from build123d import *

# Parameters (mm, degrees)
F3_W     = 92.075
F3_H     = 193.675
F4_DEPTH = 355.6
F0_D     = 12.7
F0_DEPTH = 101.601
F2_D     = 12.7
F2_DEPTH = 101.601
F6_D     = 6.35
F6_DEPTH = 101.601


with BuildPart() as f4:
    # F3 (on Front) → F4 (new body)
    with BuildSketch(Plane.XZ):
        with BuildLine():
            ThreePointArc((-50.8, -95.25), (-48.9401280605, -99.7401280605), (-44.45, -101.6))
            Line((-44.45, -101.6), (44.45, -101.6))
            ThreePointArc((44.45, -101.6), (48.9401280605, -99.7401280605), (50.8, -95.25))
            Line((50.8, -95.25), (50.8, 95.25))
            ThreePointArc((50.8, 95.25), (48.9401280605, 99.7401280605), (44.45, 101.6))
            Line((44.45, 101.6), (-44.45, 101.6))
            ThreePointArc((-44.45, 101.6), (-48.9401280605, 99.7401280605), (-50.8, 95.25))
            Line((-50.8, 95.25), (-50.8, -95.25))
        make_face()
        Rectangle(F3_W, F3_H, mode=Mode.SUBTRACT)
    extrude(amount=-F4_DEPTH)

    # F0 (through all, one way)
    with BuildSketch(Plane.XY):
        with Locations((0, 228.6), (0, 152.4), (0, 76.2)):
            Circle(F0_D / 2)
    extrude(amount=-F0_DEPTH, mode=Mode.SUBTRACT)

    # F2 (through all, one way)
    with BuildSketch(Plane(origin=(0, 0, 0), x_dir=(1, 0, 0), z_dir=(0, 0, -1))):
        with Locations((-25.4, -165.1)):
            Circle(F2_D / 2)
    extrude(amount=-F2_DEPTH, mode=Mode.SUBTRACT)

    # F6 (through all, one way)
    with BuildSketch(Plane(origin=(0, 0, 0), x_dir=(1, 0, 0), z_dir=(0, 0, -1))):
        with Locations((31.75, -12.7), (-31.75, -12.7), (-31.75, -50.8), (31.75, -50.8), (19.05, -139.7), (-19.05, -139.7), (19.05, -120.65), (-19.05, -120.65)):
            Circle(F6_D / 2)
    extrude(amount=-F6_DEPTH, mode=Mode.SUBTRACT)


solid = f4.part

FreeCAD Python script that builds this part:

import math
import FreeCAD as App
import Part
import Sketcher
from FreeCAD import Vector
Q = App.Units.Quantity


def add_polygon(sketch, points):
    """Adds a closed chain of lines whose ends are joined by coincident constraints."""
    first, n = sketch.GeometryCount, len(points)
    for a, b in zip(points, points[1:] + points[:1]):
        sketch.addGeometry(Part.LineSegment(App.Vector(*a, 0), App.Vector(*b, 0)), False)
    for i in range(n):
        sketch.addConstraint(Sketcher.Constraint("Coincident", first + i, 2, first + (i + 1) % n, 1))

doc = App.newDocument("Part")
params = doc.addObject("Spreadsheet::Sheet", "Params")
for row, (alias, value) in enumerate([
    ("sketch1_radius", "0.25 in"),
    ("sketch1_width", "3.5 in"),
    ("sketch1_height", "7.5 in"),
    ("sketch1_width2", "3.625 in"),
    ("sketch1_height2", "7.625 in"),
    ("pad1_length", "14 in"),
    ("sketch2_diameter", "0.5 in"),
    ("sketch3_diameter", "0.5 in"),
    ("sketch4_diameter", "0.25 in"),
], start=1):
    params.set(f"A{row}", alias)
    params.set(f"B{row}", "=" + value)
    params.setAlias(f"B{row}", alias)

body = doc.addObject("PartDesign::Body", "Body")

sketch1 = doc.addObject("Sketcher::SketchObject", "Sketch")
body.addObject(sketch1)
sketch1.AttachmentSupport = (doc.XZ_Plane, [""])
sketch1.MapMode = "FlatFace"
sketch1.addGeometry(Part.ArcOfCircle(Part.Circle(Vector(-44.45, -95.25, 0), Vector(0, 0, 1), 6.35), math.radians(180), math.radians(270)), False)
sketch1.addGeometry(Part.LineSegment(Vector(-44.45, -101.6, 0), Vector(44.45, -101.6, 0)), False)
sketch1.addGeometry(Part.ArcOfCircle(Part.Circle(Vector(44.45, -95.25, 0), Vector(0, 0, 1), 6.35), math.radians(-90), math.radians(0)), False)
sketch1.addGeometry(Part.LineSegment(Vector(50.8, -95.25, 0), Vector(50.8, 95.25, 0)), False)
sketch1.addGeometry(Part.ArcOfCircle(Part.Circle(Vector(44.45, 95.25, 0), Vector(0, 0, 1), 6.35), math.radians(0), math.radians(90)), False)
sketch1.addGeometry(Part.LineSegment(Vector(44.45, 101.6, 0), Vector(-44.45, 101.6, 0)), False)
sketch1.addGeometry(Part.ArcOfCircle(Part.Circle(Vector(-44.45, 95.25, 0), Vector(0, 0, 1), 6.35), math.radians(90), math.radians(180)), False)
sketch1.addGeometry(Part.LineSegment(Vector(-50.8, 95.25, 0), Vector(-50.8, -95.25, 0)), False)
add_polygon(sketch1, [(46.0375, -96.8375), (-46.0375, -96.8375), (-46.0375, 96.8375), (46.0375, 96.8375)])
sketch1.addConstraint(Sketcher.Constraint("Tangent", 0, 2, 1, 1))
sketch1.addConstraint(Sketcher.Constraint("Tangent", 1, 2, 2, 1))
sketch1.addConstraint(Sketcher.Constraint("Tangent", 2, 2, 3, 1))
sketch1.addConstraint(Sketcher.Constraint("Tangent", 3, 2, 4, 1))
sketch1.addConstraint(Sketcher.Constraint("Tangent", 4, 2, 5, 1))
sketch1.addConstraint(Sketcher.Constraint("Tangent", 5, 2, 6, 1))
sketch1.addConstraint(Sketcher.Constraint("Tangent", 6, 2, 7, 1))
sketch1.addConstraint(Sketcher.Constraint("Tangent", 7, 2, 0, 1))
sketch1.addConstraint(Sketcher.Constraint("Horizontal", 1))
sketch1.addConstraint(Sketcher.Constraint("Vertical", 3))
sketch1.addConstraint(Sketcher.Constraint("Horizontal", 5))
sketch1.addConstraint(Sketcher.Constraint("Vertical", 7))
sketch1.addConstraint(Sketcher.Constraint("Horizontal", 8))
sketch1.addConstraint(Sketcher.Constraint("Vertical", 9))
sketch1.addConstraint(Sketcher.Constraint("Horizontal", 10))
sketch1.addConstraint(Sketcher.Constraint("Vertical", 11))
sketch1.addConstraint(Sketcher.Constraint("Equal", 0, 2))
sketch1.addConstraint(Sketcher.Constraint("Equal", 2, 4))
sketch1.addConstraint(Sketcher.Constraint("Equal", 4, 6))
sketch1.addConstraint(Sketcher.Constraint("Symmetric", 0, 3, 4, 3, -1, 1))
sketch1.addConstraint(Sketcher.Constraint("Symmetric", 8, 2, 10, 2, -1, 1))
sketch1.addConstraint(Sketcher.Constraint("Radius", 0, Q("0.25 in")))
sketch1.addConstraint(Sketcher.Constraint("DistanceX", 1, 1, 1, 2, Q("3.5 in")))
sketch1.addConstraint(Sketcher.Constraint("DistanceY", 3, 1, 3, 2, Q("7.5 in")))
sketch1.addConstraint(Sketcher.Constraint("DistanceX", 8, 2, 8, 1, Q("3.625 in")))
sketch1.addConstraint(Sketcher.Constraint("DistanceY", 9, 1, 9, 2, Q("7.625 in")))
sketch1.setExpression("Constraints[25]", "Params.sketch1_radius")
sketch1.setExpression("Constraints[26]", "Params.sketch1_width")
sketch1.setExpression("Constraints[27]", "Params.sketch1_height")
sketch1.setExpression("Constraints[28]", "Params.sketch1_width2")
sketch1.setExpression("Constraints[29]", "Params.sketch1_height2")
pad1 = doc.addObject("PartDesign::Pad", "Pad")
body.addObject(pad1)
pad1.Profile = sketch1
pad1.setExpression("Length", "Params.pad1_length")
pad1.Reversed = True

sketch2 = doc.addObject("Sketcher::SketchObject", "Sketch001")
body.addObject(sketch2)
sketch2.AttachmentSupport = (doc.XY_Plane, [""])
sketch2.MapMode = "FlatFace"
sketch2.addGeometry(Part.Circle(Vector(0, 76.2, 0), Vector(0, 0, 1), 6.35), False)
sketch2.addGeometry(Part.Circle(Vector(0, 228.6, 0), Vector(0, 0, 1), 6.35), False)
sketch2.addGeometry(Part.Circle(Vector(0, 152.4, 0), Vector(0, 0, 1), 6.35), False)
sketch2.addConstraint(Sketcher.Constraint("Equal", 0, 1))
sketch2.addConstraint(Sketcher.Constraint("Equal", 1, 2))
sketch2.addConstraint(Sketcher.Constraint("PointOnObject", 0, 3, -2))
sketch2.addConstraint(Sketcher.Constraint("PointOnObject", 1, 3, -2))
sketch2.addConstraint(Sketcher.Constraint("PointOnObject", 2, 3, -2))
sketch2.addConstraint(Sketcher.Constraint("Diameter", 0, Q("0.5 in")))
sketch2.addConstraint(Sketcher.Constraint("DistanceY", -1, 1, 0, 3, Q("3 in")))
sketch2.addConstraint(Sketcher.Constraint("DistanceY", -1, 1, 1, 3, Q("9 in")))
sketch2.addConstraint(Sketcher.Constraint("DistanceY", -1, 1, 2, 3, Q("6 in")))
sketch2.setExpression("Constraints[5]", "Params.sketch2_diameter")
pocket1 = doc.addObject("PartDesign::Pocket", "Pocket")
body.addObject(pocket1)
pocket1.Profile = sketch2
pocket1.Type = "ThroughAll"

sketch3 = doc.addObject("Sketcher::SketchObject", "Sketch002")
body.addObject(sketch3)
sketch3.AttachmentSupport = (doc.XY_Plane, [""])
sketch3.MapMode = "FlatFace"
sketch3.addGeometry(Part.Circle(Vector(-25.4, 165.1, 0), Vector(0, 0, 1), 6.35), False)
sketch3.addConstraint(Sketcher.Constraint("Diameter", 0, Q("0.5 in")))
sketch3.addConstraint(Sketcher.Constraint("DistanceX", 0, 3, -1, 1, Q("1 in")))
sketch3.addConstraint(Sketcher.Constraint("DistanceY", -1, 1, 0, 3, Q("6.5 in")))
sketch3.setExpression("Constraints[0]", "Params.sketch3_diameter")
pocket2 = doc.addObject("PartDesign::Pocket", "Pocket001")
body.addObject(pocket2)
pocket2.Profile = sketch3
pocket2.Type = "ThroughAll"
pocket2.Reversed = True

sketch4 = doc.addObject("Sketcher::SketchObject", "Sketch003")
body.addObject(sketch4)
sketch4.AttachmentSupport = (doc.XY_Plane, [""])
sketch4.MapMode = "FlatFace"
sketch4.addGeometry(Part.Circle(Vector(-19.05, 120.65, 0), Vector(0, 0, 1), 3.175), False)
sketch4.addGeometry(Part.Circle(Vector(31.75, 12.7, 0), Vector(0, 0, 1), 3.175), False)
sketch4.addGeometry(Part.Circle(Vector(-31.75, 12.7, 0), Vector(0, 0, 1), 3.175), False)
sketch4.addGeometry(Part.Circle(Vector(-31.75, 50.8, 0), Vector(0, 0, 1), 3.175), False)
sketch4.addGeometry(Part.Circle(Vector(31.75, 50.8, 0), Vector(0, 0, 1), 3.175), False)
sketch4.addGeometry(Part.Circle(Vector(19.05, 139.7, 0), Vector(0, 0, 1), 3.175), False)
sketch4.addGeometry(Part.Circle(Vector(-19.05, 139.7, 0), Vector(0, 0, 1), 3.175), False)
sketch4.addGeometry(Part.Circle(Vector(19.05, 120.65, 0), Vector(0, 0, 1), 3.175), False)
sketch4.addConstraint(Sketcher.Constraint("Equal", 0, 1))
sketch4.addConstraint(Sketcher.Constraint("Equal", 1, 2))
sketch4.addConstraint(Sketcher.Constraint("Equal", 2, 3))
sketch4.addConstraint(Sketcher.Constraint("Equal", 3, 4))
sketch4.addConstraint(Sketcher.Constraint("Equal", 4, 5))
sketch4.addConstraint(Sketcher.Constraint("Equal", 5, 6))
sketch4.addConstraint(Sketcher.Constraint("Equal", 6, 7))
sketch4.addConstraint(Sketcher.Constraint("Symmetric", 1, 3, 2, 3, -2))
sketch4.addConstraint(Sketcher.Constraint("Symmetric", 3, 3, 4, 3, -2))
sketch4.addConstraint(Sketcher.Constraint("Symmetric", 5, 3, 6, 3, -2))
sketch4.addConstraint(Sketcher.Constraint("Symmetric", 0, 3, 7, 3, -2))
sketch4.addConstraint(Sketcher.Constraint("Vertical", 2, 3, 3, 3))
sketch4.addConstraint(Sketcher.Constraint("Vertical", 0, 3, 6, 3))
sketch4.addConstraint(Sketcher.Constraint("Diameter", 0, Q("0.25 in")))
sketch4.addConstraint(Sketcher.Constraint("DistanceY", -1, 1, 3, 3, Q("2 in")))
sketch4.addConstraint(Sketcher.Constraint("DistanceX", 0, 3, 1, 3, Q("2 in")))
sketch4.addConstraint(Sketcher.Constraint("DistanceY", 1, 3, 5, 3, Q("5 in")))
sketch4.addConstraint(Sketcher.Constraint("DistanceY", -1, 1, 1, 3, Q("0.5 in")))
sketch4.addConstraint(Sketcher.Constraint("DistanceX", 2, 3, 1, 3, Q("2.5 in")))
sketch4.addConstraint(Sketcher.Constraint("DistanceY", -1, 1, 0, 3, Q("4.75 in")))
sketch4.setExpression("Constraints[13]", "Params.sketch4_diameter")
pocket3 = doc.addObject("PartDesign::Pocket", "Pocket002")
body.addObject(pocket3)
pocket3.Profile = sketch4
pocket3.Type = "ThroughAll"
pocket3.Reversed = True

doc.recompute()
